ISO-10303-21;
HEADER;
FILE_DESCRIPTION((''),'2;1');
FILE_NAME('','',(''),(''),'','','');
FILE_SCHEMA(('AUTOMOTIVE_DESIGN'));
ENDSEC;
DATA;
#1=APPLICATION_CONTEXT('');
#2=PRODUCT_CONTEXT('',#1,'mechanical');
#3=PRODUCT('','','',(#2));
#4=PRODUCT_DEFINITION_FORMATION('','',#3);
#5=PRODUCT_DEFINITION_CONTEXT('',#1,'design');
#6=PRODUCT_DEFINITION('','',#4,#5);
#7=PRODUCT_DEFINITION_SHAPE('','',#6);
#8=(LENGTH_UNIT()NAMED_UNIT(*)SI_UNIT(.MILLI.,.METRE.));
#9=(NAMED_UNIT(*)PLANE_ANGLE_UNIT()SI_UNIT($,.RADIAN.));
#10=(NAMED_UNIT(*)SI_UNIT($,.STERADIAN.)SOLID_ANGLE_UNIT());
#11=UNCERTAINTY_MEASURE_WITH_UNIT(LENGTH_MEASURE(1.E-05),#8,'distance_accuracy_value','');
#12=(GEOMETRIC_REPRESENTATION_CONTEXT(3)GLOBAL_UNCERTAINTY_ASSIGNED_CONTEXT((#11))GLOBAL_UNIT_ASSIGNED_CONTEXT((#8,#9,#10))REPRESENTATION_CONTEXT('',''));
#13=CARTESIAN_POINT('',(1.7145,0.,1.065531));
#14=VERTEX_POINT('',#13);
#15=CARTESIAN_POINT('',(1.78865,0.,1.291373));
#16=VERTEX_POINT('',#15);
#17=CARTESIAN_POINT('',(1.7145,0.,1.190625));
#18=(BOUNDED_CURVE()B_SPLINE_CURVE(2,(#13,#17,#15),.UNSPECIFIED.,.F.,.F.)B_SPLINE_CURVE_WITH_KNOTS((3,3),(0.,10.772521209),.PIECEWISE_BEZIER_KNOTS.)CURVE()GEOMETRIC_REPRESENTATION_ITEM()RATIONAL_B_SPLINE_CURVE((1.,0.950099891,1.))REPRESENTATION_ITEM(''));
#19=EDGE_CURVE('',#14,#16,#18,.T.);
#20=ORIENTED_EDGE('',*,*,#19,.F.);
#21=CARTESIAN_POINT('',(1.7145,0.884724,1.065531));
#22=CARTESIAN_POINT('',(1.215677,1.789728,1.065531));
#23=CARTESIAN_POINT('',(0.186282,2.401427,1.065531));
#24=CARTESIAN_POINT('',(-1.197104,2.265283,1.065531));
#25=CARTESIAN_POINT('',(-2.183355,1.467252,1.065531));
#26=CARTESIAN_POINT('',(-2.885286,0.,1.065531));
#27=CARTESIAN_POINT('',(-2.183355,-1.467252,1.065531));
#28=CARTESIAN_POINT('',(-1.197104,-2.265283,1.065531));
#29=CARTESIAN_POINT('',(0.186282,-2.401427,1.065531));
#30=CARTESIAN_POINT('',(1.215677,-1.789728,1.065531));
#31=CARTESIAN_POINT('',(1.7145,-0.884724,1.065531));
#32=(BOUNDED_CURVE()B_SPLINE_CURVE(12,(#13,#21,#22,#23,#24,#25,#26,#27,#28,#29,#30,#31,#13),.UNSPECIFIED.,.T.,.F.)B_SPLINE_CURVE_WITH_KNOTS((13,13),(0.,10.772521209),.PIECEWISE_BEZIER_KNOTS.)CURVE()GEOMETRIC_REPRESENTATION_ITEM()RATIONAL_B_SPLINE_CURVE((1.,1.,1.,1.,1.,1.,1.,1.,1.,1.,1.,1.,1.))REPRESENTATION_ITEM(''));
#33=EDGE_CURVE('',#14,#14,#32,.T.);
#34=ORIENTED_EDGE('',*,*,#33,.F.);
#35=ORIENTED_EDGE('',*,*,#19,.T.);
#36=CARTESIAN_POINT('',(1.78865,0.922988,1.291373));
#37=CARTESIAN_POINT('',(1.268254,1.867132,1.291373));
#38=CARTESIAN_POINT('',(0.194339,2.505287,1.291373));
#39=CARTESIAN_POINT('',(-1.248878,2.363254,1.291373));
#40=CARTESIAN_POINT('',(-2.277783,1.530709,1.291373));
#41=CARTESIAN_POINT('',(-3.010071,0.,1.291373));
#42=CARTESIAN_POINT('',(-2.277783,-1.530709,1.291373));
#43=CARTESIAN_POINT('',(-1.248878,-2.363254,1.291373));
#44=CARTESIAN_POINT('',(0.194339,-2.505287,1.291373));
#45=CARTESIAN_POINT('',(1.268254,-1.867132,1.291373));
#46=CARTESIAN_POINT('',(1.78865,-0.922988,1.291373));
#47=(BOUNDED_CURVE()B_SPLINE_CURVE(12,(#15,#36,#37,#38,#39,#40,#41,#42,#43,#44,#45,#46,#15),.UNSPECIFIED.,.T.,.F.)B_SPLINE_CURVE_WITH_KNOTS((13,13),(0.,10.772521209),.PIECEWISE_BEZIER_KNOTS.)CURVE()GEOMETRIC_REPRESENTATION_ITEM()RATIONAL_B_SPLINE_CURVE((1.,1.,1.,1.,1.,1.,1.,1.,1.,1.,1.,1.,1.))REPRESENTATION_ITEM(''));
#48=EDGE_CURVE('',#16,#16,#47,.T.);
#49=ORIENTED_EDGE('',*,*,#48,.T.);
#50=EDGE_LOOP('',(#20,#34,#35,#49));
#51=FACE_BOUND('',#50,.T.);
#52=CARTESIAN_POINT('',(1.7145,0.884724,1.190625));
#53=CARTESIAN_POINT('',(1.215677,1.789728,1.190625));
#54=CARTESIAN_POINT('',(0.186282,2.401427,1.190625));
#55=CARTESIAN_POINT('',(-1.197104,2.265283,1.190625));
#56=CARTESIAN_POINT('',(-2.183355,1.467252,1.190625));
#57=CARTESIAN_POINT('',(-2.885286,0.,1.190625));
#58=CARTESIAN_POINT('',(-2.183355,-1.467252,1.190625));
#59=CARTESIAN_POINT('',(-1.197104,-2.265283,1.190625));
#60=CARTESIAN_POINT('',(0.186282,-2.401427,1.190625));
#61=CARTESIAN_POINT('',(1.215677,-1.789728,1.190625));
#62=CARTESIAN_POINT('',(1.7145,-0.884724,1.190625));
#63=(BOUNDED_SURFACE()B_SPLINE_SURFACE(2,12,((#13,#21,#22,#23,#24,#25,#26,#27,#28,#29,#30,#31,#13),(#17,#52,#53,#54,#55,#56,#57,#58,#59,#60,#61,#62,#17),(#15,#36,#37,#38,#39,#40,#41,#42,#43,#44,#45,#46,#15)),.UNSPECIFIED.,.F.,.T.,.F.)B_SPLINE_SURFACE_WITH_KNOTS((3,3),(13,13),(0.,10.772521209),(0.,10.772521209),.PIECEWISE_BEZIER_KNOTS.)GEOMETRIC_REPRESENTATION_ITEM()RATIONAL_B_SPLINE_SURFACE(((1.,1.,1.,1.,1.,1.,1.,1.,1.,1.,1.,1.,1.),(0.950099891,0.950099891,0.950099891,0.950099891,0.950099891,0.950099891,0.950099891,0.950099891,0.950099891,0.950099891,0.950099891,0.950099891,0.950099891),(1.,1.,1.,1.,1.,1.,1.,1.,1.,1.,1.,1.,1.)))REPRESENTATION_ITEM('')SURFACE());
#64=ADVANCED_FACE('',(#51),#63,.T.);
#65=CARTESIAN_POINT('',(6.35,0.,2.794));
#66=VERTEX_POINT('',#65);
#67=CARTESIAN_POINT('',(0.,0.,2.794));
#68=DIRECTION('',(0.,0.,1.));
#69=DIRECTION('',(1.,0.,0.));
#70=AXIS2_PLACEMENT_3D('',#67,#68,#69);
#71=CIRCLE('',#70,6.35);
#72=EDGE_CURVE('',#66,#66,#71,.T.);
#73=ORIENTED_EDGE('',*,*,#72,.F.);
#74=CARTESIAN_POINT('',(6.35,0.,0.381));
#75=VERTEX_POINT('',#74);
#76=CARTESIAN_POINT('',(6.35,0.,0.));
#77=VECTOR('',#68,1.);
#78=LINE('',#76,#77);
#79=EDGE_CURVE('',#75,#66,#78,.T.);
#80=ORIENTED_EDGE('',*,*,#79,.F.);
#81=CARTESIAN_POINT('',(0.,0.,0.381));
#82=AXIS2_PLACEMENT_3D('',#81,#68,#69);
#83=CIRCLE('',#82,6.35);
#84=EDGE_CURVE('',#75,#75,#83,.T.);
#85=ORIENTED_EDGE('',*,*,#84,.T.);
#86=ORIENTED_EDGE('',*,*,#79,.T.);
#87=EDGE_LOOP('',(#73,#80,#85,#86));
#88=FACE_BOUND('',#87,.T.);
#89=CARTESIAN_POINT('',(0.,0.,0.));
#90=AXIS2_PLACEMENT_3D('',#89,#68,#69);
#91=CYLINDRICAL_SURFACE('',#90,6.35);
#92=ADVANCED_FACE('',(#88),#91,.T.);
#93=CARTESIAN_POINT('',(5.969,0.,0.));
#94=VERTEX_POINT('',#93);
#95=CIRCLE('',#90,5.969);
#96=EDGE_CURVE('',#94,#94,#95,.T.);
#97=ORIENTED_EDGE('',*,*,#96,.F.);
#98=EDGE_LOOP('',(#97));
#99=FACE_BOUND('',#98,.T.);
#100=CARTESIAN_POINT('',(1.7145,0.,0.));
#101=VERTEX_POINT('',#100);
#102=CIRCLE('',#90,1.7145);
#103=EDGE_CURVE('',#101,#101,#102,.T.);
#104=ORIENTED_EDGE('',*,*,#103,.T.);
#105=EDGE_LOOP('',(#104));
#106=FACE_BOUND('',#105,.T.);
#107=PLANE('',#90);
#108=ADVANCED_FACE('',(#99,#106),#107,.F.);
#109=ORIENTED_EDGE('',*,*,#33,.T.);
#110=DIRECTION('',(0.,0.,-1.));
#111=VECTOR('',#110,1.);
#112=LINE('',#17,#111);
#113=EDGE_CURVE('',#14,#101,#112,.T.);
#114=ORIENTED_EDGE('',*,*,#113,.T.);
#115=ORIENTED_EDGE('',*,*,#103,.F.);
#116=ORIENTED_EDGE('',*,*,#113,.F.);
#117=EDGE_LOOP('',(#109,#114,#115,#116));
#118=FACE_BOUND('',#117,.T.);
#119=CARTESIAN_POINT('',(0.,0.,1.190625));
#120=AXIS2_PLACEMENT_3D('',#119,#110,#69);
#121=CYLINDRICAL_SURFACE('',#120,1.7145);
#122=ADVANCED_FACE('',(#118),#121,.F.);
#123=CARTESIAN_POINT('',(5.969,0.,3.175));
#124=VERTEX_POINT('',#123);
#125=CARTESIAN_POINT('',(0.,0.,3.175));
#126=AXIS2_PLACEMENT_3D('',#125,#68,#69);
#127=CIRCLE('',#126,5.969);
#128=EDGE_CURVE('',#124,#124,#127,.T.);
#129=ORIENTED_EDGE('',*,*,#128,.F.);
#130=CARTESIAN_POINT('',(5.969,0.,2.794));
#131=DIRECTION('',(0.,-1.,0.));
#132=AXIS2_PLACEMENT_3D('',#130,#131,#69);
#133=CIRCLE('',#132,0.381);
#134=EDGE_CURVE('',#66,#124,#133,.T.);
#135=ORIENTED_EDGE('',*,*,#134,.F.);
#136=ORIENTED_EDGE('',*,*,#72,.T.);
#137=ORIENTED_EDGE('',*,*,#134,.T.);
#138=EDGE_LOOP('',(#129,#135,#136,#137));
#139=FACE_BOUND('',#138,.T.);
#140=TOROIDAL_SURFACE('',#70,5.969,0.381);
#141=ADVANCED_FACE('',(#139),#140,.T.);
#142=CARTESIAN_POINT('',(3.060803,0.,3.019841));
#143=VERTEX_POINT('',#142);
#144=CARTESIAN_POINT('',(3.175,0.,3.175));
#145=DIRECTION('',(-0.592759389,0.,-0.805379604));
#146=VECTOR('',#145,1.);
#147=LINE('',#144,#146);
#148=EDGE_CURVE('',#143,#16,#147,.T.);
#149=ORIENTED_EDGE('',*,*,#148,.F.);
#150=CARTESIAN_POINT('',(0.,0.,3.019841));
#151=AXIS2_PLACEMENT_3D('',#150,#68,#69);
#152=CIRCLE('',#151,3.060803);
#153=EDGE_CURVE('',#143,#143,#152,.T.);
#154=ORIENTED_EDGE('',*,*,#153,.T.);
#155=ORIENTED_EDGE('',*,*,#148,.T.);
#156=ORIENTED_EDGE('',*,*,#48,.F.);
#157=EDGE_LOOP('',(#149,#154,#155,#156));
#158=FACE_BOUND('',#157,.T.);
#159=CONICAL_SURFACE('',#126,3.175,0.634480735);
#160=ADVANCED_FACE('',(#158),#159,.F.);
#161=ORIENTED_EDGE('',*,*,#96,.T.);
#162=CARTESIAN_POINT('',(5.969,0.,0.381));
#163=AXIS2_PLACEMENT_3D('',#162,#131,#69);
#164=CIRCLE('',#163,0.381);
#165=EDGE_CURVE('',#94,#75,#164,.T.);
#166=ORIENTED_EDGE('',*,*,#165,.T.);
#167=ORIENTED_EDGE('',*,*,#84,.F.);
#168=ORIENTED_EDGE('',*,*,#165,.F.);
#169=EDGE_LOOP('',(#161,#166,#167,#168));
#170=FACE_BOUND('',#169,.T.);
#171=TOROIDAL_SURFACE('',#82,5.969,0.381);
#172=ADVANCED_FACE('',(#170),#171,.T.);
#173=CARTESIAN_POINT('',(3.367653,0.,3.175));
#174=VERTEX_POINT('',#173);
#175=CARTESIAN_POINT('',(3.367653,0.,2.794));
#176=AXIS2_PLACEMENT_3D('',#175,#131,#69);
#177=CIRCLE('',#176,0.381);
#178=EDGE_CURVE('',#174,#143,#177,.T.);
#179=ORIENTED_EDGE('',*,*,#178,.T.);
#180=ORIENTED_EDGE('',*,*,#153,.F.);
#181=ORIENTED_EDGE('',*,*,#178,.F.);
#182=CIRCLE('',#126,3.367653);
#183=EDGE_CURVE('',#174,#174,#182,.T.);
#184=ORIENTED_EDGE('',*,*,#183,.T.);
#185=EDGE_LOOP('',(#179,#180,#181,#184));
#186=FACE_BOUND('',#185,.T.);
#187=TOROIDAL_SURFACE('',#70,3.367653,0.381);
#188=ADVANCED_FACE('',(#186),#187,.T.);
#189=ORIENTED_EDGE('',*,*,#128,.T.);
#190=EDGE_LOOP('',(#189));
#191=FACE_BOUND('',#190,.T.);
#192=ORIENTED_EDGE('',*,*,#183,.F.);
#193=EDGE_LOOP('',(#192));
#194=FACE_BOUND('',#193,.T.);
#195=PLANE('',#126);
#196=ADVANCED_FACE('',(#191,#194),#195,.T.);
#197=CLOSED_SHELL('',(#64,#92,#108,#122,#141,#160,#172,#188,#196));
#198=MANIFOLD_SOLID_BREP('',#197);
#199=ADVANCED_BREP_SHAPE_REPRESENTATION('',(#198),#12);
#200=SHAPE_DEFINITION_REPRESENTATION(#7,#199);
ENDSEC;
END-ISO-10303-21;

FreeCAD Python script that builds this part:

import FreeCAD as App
import Part
import Sketcher
Q = App.Units.Quantity


def edges_at(feature, points):
    """Names of the edges that pass closest to the given points."""
    edges = feature.Shape.Edges
    near = lambda p: min(range(len(edges)), key=lambda i: edges[i].distToShape(Part.Vertex(*p))[0])
    return sorted({f"Edge{near(p) + 1}" for p in points})

doc = App.newDocument("Part")
body = doc.addObject("PartDesign::Body", "Body")

# Sketch on XZ plane
sketch1 = doc.addObject("Sketcher::SketchObject", "Sketch")
body.addObject(sketch1)
sketch1.AttachmentSupport = (doc.XZ_Plane, [""])
sketch1.MapMode = "FlatFace"
sketch1.addGeometry(Part.LineSegment(App.Vector(1.7145, 1.190625, 0), App.Vector(1.7145, 0, 0)), False)
sketch1.addGeometry(Part.LineSegment(App.Vector(1.7145, 0, 0), App.Vector(6.35, 0, 0)), False)
sketch1.addGeometry(Part.LineSegment(App.Vector(6.35, 0, 0), App.Vector(6.35, 3.175, 0)), False)
sketch1.addGeometry(Part.LineSegment(App.Vector(6.35, 3.175, 0), App.Vector(3.175, 3.175, 0)), False)
sketch1.addGeometry(Part.LineSegment(App.Vector(3.175, 3.175, 0), App.Vector(1.7145, 1.190625, 0)), False)
sketch1.addConstraint(Sketcher.Constraint("Coincident", 0, 2, 1, 1))
sketch1.addConstraint(Sketcher.Constraint("Coincident", 1, 2, 2, 1))
sketch1.addConstraint(Sketcher.Constraint("Coincident", 2, 2, 3, 1))
sketch1.addConstraint(Sketcher.Constraint("Coincident", 3, 2, 4, 1))
sketch1.addConstraint(Sketcher.Constraint("Coincident", 4, 2, 0, 1))
sketch1.addConstraint(Sketcher.Constraint("Vertical", 0))
sketch1.addConstraint(Sketcher.Constraint("Horizontal", 1))
sketch1.addConstraint(Sketcher.Constraint("Vertical", 2))
sketch1.addConstraint(Sketcher.Constraint("Horizontal", 3))
sketch1.addConstraint(Sketcher.Constraint("PointOnObject", 0, 2, -1))
sketch1.addConstraint(Sketcher.Constraint("Equal", 3, 2))
sketch1.addConstraint(Sketcher.Constraint("DistanceX", 3, 2, 3, 1, Q("0.125 in")))
sketch1.addConstraint(Sketcher.Constraint("DistanceY", 0, 2, 0, 1, Q("0.046875 in")))
sketch1.addConstraint(Sketcher.Constraint("DistanceX", -1, 1, 1, 2, Q("0.25 in")))
sketch1.addConstraint(Sketcher.Constraint("DistanceX", 1, 1, 1, 2, Q("0.1825 in")))
revolution = doc.addObject("PartDesign::Revolution", "Revolution")
body.addObject(revolution)
revolution.Profile = sketch1
revolution.ReferenceAxis = (sketch1, ["V_Axis"])
revolution.Angle = 360
doc.recompute()

fillet = doc.addObject("PartDesign::Fillet", "Fillet")
body.addObject(fillet)
fillet.Base = (revolution, edges_at(revolution, [
    (-3.175, 0, 3.175),
    (-1.714, 0, 1.191),
    (-6.35, 0, 3.175),
    (-6.35, 0, 0),
]))
fillet.Radius = Q("0.015 in")

doc.recompute()
